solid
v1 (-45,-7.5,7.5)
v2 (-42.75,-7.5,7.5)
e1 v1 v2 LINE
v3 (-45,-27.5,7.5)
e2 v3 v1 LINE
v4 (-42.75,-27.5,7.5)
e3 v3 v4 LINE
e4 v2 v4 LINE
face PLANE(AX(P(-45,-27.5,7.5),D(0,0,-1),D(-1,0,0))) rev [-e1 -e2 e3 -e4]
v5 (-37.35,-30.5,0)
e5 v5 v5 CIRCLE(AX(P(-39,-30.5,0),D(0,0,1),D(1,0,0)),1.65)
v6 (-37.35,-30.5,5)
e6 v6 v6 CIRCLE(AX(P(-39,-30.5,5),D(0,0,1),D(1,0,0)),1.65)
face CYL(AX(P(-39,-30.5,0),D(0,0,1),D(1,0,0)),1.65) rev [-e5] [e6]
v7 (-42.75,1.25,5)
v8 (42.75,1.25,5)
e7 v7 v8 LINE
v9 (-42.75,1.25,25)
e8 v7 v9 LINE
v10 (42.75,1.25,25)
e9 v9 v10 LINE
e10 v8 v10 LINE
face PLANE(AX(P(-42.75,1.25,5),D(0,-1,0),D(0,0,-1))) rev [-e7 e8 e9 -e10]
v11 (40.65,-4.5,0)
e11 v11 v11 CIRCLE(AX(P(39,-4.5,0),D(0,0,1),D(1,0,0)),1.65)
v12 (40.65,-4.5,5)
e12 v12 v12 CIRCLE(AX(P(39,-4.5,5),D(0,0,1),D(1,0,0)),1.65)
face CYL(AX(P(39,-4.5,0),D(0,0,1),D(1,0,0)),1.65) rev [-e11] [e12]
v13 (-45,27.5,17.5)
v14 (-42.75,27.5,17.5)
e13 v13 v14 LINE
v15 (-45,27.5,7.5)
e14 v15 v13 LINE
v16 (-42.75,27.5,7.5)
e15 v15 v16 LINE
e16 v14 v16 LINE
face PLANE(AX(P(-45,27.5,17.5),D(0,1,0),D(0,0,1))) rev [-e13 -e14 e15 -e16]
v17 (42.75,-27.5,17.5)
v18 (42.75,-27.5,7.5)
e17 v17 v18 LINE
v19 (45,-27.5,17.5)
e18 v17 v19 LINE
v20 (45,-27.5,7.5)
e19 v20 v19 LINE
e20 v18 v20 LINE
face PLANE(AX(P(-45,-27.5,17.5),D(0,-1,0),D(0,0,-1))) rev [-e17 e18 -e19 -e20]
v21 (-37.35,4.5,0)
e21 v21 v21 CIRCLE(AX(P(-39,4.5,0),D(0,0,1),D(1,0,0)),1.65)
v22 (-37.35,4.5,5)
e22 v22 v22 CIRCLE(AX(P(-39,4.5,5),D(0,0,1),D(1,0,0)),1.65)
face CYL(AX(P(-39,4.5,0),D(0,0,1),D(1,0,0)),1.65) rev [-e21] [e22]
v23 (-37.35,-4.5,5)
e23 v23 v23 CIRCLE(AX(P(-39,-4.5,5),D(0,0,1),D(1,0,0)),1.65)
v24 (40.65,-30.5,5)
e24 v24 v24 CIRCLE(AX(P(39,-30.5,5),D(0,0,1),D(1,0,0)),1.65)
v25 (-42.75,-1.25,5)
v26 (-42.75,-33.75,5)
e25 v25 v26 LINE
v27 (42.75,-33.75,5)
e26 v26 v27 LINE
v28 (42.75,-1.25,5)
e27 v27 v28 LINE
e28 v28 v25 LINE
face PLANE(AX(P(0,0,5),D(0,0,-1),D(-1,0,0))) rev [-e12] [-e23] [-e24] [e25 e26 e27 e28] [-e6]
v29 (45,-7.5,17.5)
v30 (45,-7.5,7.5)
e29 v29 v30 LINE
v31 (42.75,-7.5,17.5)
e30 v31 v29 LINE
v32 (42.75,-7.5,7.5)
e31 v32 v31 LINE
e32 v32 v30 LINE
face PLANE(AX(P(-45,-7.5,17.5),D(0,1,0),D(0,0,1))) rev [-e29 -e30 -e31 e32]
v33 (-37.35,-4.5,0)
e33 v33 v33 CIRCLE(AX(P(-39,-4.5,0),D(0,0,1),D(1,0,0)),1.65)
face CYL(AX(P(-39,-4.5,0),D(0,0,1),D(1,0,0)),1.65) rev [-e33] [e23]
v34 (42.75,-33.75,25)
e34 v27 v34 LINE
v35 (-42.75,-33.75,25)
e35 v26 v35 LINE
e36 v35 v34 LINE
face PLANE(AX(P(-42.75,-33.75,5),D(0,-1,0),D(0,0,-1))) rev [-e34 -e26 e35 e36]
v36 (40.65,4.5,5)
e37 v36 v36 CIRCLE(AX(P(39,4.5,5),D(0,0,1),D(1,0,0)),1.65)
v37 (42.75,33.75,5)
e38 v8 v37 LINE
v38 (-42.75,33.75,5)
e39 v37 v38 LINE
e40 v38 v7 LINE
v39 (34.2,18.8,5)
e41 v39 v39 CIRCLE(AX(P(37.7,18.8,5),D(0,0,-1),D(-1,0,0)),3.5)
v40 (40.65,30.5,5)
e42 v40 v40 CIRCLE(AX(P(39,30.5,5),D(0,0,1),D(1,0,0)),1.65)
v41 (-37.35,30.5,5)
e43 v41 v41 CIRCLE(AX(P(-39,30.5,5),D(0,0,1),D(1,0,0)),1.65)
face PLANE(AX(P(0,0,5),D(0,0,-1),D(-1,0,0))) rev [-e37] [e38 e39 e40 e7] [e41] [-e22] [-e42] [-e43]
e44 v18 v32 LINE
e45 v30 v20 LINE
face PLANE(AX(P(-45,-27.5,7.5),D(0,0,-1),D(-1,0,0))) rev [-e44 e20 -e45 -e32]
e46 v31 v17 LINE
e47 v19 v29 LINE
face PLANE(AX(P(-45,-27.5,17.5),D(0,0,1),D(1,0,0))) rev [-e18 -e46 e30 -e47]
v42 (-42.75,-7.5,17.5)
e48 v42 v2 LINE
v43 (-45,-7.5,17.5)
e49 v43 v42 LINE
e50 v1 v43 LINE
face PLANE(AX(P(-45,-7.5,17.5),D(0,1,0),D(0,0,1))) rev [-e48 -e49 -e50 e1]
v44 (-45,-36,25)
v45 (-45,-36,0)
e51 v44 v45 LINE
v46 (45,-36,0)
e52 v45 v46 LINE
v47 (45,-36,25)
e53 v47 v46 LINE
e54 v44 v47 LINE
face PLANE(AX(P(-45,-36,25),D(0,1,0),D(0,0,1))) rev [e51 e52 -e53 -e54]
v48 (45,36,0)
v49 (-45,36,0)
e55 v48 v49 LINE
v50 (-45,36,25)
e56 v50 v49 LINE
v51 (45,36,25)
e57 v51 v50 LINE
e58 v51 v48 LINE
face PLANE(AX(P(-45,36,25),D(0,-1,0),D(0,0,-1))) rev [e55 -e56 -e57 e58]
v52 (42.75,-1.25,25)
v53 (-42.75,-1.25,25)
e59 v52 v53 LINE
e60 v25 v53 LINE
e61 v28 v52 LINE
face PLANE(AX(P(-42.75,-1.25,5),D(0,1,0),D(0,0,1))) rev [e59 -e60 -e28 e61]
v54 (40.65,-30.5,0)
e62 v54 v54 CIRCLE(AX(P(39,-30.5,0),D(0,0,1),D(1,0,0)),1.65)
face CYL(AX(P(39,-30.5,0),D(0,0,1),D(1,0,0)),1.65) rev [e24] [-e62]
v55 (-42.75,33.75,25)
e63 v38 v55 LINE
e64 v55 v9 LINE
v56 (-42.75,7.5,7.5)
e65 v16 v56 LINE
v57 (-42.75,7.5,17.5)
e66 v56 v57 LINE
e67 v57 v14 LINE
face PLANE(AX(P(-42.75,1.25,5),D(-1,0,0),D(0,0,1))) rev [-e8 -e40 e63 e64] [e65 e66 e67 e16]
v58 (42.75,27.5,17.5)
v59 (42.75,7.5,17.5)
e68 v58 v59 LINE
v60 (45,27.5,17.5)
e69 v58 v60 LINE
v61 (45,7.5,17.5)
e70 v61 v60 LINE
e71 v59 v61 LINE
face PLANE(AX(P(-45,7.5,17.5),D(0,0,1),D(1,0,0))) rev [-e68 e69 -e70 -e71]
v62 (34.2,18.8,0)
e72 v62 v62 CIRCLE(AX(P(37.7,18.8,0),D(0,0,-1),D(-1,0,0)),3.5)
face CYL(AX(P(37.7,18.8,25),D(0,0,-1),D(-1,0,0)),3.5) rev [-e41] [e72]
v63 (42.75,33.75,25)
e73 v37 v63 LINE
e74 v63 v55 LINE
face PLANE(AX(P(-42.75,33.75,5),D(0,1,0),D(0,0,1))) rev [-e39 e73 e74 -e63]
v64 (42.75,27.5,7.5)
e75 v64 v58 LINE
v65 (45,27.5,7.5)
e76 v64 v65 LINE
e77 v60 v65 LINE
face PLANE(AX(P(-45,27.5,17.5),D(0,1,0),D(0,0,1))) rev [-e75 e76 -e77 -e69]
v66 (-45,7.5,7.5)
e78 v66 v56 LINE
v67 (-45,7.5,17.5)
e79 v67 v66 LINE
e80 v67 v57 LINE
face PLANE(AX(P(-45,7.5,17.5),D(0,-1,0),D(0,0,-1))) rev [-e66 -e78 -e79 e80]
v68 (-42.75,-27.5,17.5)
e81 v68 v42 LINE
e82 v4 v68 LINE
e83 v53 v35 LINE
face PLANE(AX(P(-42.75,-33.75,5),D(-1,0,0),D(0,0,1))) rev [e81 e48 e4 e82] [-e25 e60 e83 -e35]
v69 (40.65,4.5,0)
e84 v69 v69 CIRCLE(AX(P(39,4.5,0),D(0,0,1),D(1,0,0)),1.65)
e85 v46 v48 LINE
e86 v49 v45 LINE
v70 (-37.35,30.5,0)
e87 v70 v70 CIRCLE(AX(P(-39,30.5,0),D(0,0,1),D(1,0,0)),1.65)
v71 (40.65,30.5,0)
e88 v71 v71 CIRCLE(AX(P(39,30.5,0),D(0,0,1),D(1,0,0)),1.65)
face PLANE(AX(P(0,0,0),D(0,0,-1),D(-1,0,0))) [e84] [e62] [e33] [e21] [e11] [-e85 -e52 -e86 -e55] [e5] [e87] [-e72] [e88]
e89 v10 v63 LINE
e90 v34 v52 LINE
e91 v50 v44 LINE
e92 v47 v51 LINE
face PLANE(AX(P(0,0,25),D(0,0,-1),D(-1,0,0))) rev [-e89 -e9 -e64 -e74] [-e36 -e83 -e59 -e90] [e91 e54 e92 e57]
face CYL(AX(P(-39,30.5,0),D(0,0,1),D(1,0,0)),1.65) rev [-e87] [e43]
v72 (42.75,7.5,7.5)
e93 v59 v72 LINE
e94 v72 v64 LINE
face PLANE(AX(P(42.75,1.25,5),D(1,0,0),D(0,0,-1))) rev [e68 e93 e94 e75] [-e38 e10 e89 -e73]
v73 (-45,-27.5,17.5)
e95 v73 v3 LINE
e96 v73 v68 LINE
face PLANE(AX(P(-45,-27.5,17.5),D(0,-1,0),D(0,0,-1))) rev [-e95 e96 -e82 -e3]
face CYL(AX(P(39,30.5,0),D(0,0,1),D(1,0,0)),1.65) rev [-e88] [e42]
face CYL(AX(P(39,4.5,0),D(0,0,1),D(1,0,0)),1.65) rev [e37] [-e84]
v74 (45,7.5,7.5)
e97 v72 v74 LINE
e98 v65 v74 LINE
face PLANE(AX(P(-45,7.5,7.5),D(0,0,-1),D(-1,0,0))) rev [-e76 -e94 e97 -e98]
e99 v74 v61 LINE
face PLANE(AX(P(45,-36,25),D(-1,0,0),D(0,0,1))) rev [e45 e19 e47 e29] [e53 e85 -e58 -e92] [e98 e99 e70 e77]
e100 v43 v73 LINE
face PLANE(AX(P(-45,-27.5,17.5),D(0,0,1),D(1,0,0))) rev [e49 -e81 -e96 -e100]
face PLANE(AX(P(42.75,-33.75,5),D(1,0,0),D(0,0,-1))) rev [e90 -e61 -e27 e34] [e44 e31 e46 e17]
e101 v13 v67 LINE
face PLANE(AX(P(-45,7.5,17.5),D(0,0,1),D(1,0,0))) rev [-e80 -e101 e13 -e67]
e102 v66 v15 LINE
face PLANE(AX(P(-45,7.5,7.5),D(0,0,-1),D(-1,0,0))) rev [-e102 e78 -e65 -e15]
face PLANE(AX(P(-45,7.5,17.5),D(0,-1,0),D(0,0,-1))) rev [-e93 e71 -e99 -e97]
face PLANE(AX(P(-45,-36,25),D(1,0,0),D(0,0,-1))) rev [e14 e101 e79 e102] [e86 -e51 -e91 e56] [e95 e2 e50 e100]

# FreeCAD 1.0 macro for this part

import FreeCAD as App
import Part
import Sketcher
Q = App.Units.Quantity

doc = App.newDocument("Part")
body = doc.addObject("PartDesign::Body", "Body")

# Sketch on XY plane
sketch1 = body.newObject("Sketcher::SketchObject", "Sketch")
sketch1.AttachmentSupport = (doc.getObject("XY_Plane"), [""])
sketch1.MapMode = "FlatFace"
sketch1.addGeometry(Part.LineSegment(App.Vector(-45, 36, 0), App.Vector(-45, -36, 0)), False)
sketch1.addGeometry(Part.LineSegment(App.Vector(-45, -36, 0), App.Vector(45, -36, 0)), False)
sketch1.addGeometry(Part.LineSegment(App.Vector(45, -36, 0), App.Vector(45, 36, 0)), False)
sketch1.addGeometry(Part.LineSegment(App.Vector(45, 36, 0), App.Vector(-45, 36, 0)), False)
sketch1.addConstraint(Sketcher.Constraint("Coincident", 0, 2, 1, 1))
sketch1.addConstraint(Sketcher.Constraint("Coincident", 1, 2, 2, 1))
sketch1.addConstraint(Sketcher.Constraint("Coincident", 2, 2, 3, 1))
sketch1.addConstraint(Sketcher.Constraint("Coincident", 3, 2, 0, 1))
sketch1.addConstraint(Sketcher.Constraint("Vertical", 0))
sketch1.addConstraint(Sketcher.Constraint("Horizontal", 1))
sketch1.addConstraint(Sketcher.Constraint("Vertical", 2))
sketch1.addConstraint(Sketcher.Constraint("Horizontal", 3))
sketch1.addConstraint(Sketcher.Constraint("Symmetric", 0, 2, 2, 2, -1, 1))
sketch1.addConstraint(Sketcher.Constraint("DistanceX", 1, 1, 1, 2, Q("90 mm")))
sketch1.addConstraint(Sketcher.Constraint("DistanceY", 0, 2, 0, 1, Q("72 mm")))
pad1 = body.newObject("PartDesign::Pad", "Pad")
pad1.Profile = sketch1
pad1.Length = 25

# Sketch on XY plane
sketch2 = body.newObject("Sketcher::SketchObject", "Sketch001")
sketch2.AttachmentSupport = (doc.getObject("XY_Plane"), [""])
sketch2.MapMode = "FlatFace"
sketch2.AttachmentOffset = App.Placement(App.Vector(0, 0, 25), App.Rotation())
sketch2.addGeometry(Part.LineSegment(App.Vector(-43, 34, 0), App.Vector(-43, 1, 0)), False)
sketch2.addGeometry(Part.LineSegment(App.Vector(-43, 1, 0), App.Vector(43, 1, 0)), False)
sketch2.addGeometry(Part.LineSegment(App.Vector(43, 1, 0), App.Vector(43, 34, 0)), False)
sketch2.addGeometry(Part.LineSegment(App.Vector(43, 34, 0), App.Vector(-43, 34, 0)), False)
sketch2.addGeometry(Part.LineSegment(App.Vector(-43, -1, 0), App.Vector(-43, -34, 0)), False)
sketch2.addGeometry(Part.LineSegment(App.Vector(-43, -34, 0), App.Vector(43, -34, 0)), False)
sketch2.addGeometry(Part.LineSegment(App.Vector(43, -34, 0), App.Vector(43, -1, 0)), False)
sketch2.addGeometry(Part.LineSegment(App.Vector(43, -1, 0), App.Vector(-43, -1, 0)), False)
sketch2.addConstraint(Sketcher.Constraint("Coincident", 0, 2, 1, 1))
sketch2.addConstraint(Sketcher.Constraint("Coincident", 1, 2, 2, 1))
sketch2.addConstraint(Sketcher.Constraint("Coincident", 2, 2, 3, 1))
sketch2.addConstraint(Sketcher.Constraint("Coincident", 3, 2, 0, 1))
sketch2.addConstraint(Sketcher.Constraint("Coincident", 4, 2, 5, 1))
sketch2.addConstraint(Sketcher.Constraint("Coincident", 5, 2, 6, 1))
sketch2.addConstraint(Sketcher.Constraint("Coincident", 6, 2, 7, 1))
sketch2.addConstraint(Sketcher.Constraint("Coincident", 7, 2, 4, 1))
sketch2.addConstraint(Sketcher.Constraint("Vertical", 0))
sketch2.addConstraint(Sketcher.Constraint("Horizontal", 1))
sketch2.addConstraint(Sketcher.Constraint("Vertical", 2))
sketch2.addConstraint(Sketcher.Constraint("Horizontal", 3))
sketch2.addConstraint(Sketcher.Constraint("Vertical", 4))
sketch2.addConstraint(Sketcher.Constraint("Horizontal", 5))
sketch2.addConstraint(Sketcher.Constraint("Vertical", 6))
sketch2.addConstraint(Sketcher.Constraint("Horizontal", 7))
sketch2.addConstraint(Sketcher.Constraint("Symmetric", 2, 2, 4, 2, -1, 1))
sketch2.addConstraint(Sketcher.Constraint("Symmetric", 0, 2, 6, 2, -1, 1))
sketch2.addConstraint(Sketcher.Constraint("Vertical", 3, 2, 4, 2))
sketch2.addConstraint(Sketcher.Constraint("DistanceX", 1, 1, 1, 2, Q("85.5 mm")))
sketch2.addConstraint(Sketcher.Constraint("DistanceY", 0, 2, 0, 1, Q("32.5 mm")))
sketch2.addConstraint(Sketcher.Constraint("DistanceY", 4, 2, 0, 2, Q("35 mm")))
pocket1 = body.newObject("PartDesign::Pocket", "Pocket")
pocket1.Profile = sketch2
pocket1.Length = 20

# Sketch on YZ plane
sketch3 = body.newObject("Sketcher::SketchObject", "Sketch002")
sketch3.AttachmentSupport = (doc.getObject("YZ_Plane"), [""])
sketch3.MapMode = "FlatFace"
sketch3.AttachmentOffset = App.Placement(App.Vector(0, 0, 45), App.Rotation())
sketch3.addGeometry(Part.LineSegment(App.Vector(28, 18, 0), App.Vector(8, 18, 0)), False)
sketch3.addGeometry(Part.LineSegment(App.Vector(8, 18, 0), App.Vector(8, 8, 0)), False)
sketch3.addGeometry(Part.LineSegment(App.Vector(8, 8, 0), App.Vector(28, 8, 0)), False)
sketch3.addGeometry(Part.LineSegment(App.Vector(28, 8, 0), App.Vector(28, 18, 0)), False)
sketch3.addGeometry(Part.LineSegment(App.Vector(-8, 18, 0), App.Vector(-28, 18, 0)), False)
sketch3.addGeometry(Part.LineSegment(App.Vector(-28, 18, 0), App.Vector(-28, 8, 0)), False)
sketch3.addGeometry(Part.LineSegment(App.Vector(-28, 8, 0), App.Vector(-8, 8, 0)), False)
sketch3.addGeometry(Part.LineSegment(App.Vector(-8, 8, 0), App.Vector(-8, 18, 0)), False)
sketch3.addConstraint(Sketcher.Constraint("Coincident", 0, 2, 1, 1))
sketch3.addConstraint(Sketcher.Constraint("Coincident", 1, 2, 2, 1))
sketch3.addConstraint(Sketcher.Constraint("Coincident", 2, 2, 3, 1))
sketch3.addConstraint(Sketcher.Constraint("Coincident", 3, 2, 0, 1))
sketch3.addConstraint(Sketcher.Constraint("Coincident", 4, 2, 5, 1))
sketch3.addConstraint(Sketcher.Constraint("Coincident", 5, 2, 6, 1))
sketch3.addConstraint(Sketcher.Constraint("Coincident", 6, 2, 7, 1))
sketch3.addConstraint(Sketcher.Constraint("Coincident", 7, 2, 4, 1))
sketch3.addConstraint(Sketcher.Constraint("Horizontal", 0))
sketch3.addConstraint(Sketcher.Constraint("Vertical", 1))
sketch3.addConstraint(Sketcher.Constraint("Horizontal", 2))
sketch3.addConstraint(Sketcher.Constraint("Vertical", 3))
sketch3.addConstraint(Sketcher.Constraint("Horizontal", 4))
sketch3.addConstraint(Sketcher.Constraint("Vertical", 5))
sketch3.addConstraint(Sketcher.Constraint("Horizontal", 6))
sketch3.addConstraint(Sketcher.Constraint("Vertical", 7))
sketch3.addConstraint(Sketcher.Constraint("Symmetric", 3, 2, 4, 2, -2))
sketch3.addConstraint(Sketcher.Constraint("Symmetric", 1, 2, 6, 2, -2))
sketch3.addConstraint(Sketcher.Constraint("DistanceX", 0, 2, 0, 1, Q("20 mm")))
sketch3.addConstraint(Sketcher.Constraint("DistanceY", 1, 2, 1, 1, Q("10 mm")))
sketch3.addConstraint(Sketcher.Constraint("DistanceX", 4, 2, 0, 2, Q("35 mm")))
sketch3.addConstraint(Sketcher.Constraint("DistanceY", -1, 1, 0, 2, Q("17.5 mm")))
pocket2 = body.newObject("PartDesign::Pocket", "Pocket001")
pocket2.Profile = sketch3
pocket2.Type = "ThroughAll"
pocket2.Midplane = True

# Sketch on XY plane
sketch4 = body.newObject("Sketcher::SketchObject", "Sketch003")
sketch4.AttachmentSupport = (doc.getObject("XY_Plane"), [""])
sketch4.MapMode = "FlatFace"
sketch4.AttachmentOffset = App.Placement(App.Vector(0, 0, 5), App.Rotation())
sketch4.addGeometry(Part.Circle(App.Vector(-39, 4.5, 0), App.Vector(0, 0, 1), 1.6), False)
sketch4.addGeometry(Part.Circle(App.Vector(-39, 30.5, 0), App.Vector(0, 0, 1), 1.6), False)
sketch4.addGeometry(Part.Circle(App.Vector(-39, -4.5, 0), App.Vector(0, 0, 1), 1.6), False)
sketch4.addGeometry(Part.Circle(App.Vector(-39, -30.5, 0), App.Vector(0, 0, 1), 1.6), False)
sketch4.addGeometry(Part.Circle(App.Vector(39, -30.5, 0), App.Vector(0, 0, 1), 1.6), False)
sketch4.addGeometry(Part.Circle(App.Vector(39, -4.5, 0), App.Vector(0, 0, 1), 1.6), False)
sketch4.addGeometry(Part.Circle(App.Vector(39, 4.5, 0), App.Vector(0, 0, 1), 1.6), False)
sketch4.addGeometry(Part.Circle(App.Vector(39, 30.5, 0), App.Vector(0, 0, 1), 1.6), False)
sketch4.addConstraint(Sketcher.Constraint("Equal", 0, 1))
sketch4.addConstraint(Sketcher.Constraint("Equal", 1, 2))
sketch4.addConstraint(Sketcher.Constraint("Equal", 2, 3))
sketch4.addConstraint(Sketcher.Constraint("Equal", 3, 4))
sketch4.addConstraint(Sketcher.Constraint("Equal", 4, 5))
sketch4.addConstraint(Sketcher.Constraint("Equal", 5, 6))
sketch4.addConstraint(Sketcher.Constraint("Equal", 6, 7))
sketch4.addConstraint(Sketcher.Constraint("Symmetric", 1, 3, 4, 3, -1, 1))
sketch4.addConstraint(Sketcher.Constraint("Symmetric", 0, 3, 5, 3, -1, 1))
sketch4.addConstraint(Sketcher.Constraint("Symmetric", 2, 3, 6, 3, -1, 1))
sketch4.addConstraint(Sketcher.Constraint("Symmetric", 3, 3, 7, 3, -1, 1))
sketch4.addConstraint(Sketcher.Constraint("Symmetric", 3, 3, 4, 3, -2))
sketch4.addConstraint(Sketcher.Constraint("Symmetric", 2, 3, 5, 3, -2))
sketch4.addConstraint(Sketcher.Constraint("Vertical", 0, 3, 1, 3))
sketch4.addConstraint(Sketcher.Constraint("Diameter", 0, Q("3.3 mm")))
sketch4.addConstraint(Sketcher.Constraint("DistanceX", 0, 3, -1, 1, Q("39 mm")))
sketch4.addConstraint(Sketcher.Constraint("DistanceY", 0, 3, 1, 3, Q("26 mm")))
sketch4.addConstraint(Sketcher.Constraint("DistanceY", 2, 3, 0, 3, Q("9 mm")))
pocket3 = body.newObject("PartDesign::Pocket", "Pocket002")
pocket3.Profile = sketch4
pocket3.Type = "ThroughAll"
pocket3.Midplane = True

# Sketch on XY plane
sketch5 = body.newObject("Sketcher::SketchObject", "Sketch004")
sketch5.AttachmentSupport = (doc.getObject("XY_Plane"), [""])
sketch5.MapMode = "FlatFace"
sketch5.addGeometry(Part.Circle(App.Vector(37.7, 18.8, 0), App.Vector(0, 0, 1), 3.5), False)
sketch5.addConstraint(Sketcher.Constraint("Diameter", 0, Q("7 mm")))
sketch5.addConstraint(Sketcher.Constraint("DistanceX", -1, 1, 0, 3, Q("37.7 mm")))
sketch5.addConstraint(Sketcher.Constraint("DistanceY", -1, 1, 0, 3, Q("18.8 mm")))
pocket4 = body.newObject("PartDesign::Pocket", "Pocket003")
pocket4.Profile = sketch5
pocket4.Type = "ThroughAll"
pocket4.Midplane = True

doc.recompute()
